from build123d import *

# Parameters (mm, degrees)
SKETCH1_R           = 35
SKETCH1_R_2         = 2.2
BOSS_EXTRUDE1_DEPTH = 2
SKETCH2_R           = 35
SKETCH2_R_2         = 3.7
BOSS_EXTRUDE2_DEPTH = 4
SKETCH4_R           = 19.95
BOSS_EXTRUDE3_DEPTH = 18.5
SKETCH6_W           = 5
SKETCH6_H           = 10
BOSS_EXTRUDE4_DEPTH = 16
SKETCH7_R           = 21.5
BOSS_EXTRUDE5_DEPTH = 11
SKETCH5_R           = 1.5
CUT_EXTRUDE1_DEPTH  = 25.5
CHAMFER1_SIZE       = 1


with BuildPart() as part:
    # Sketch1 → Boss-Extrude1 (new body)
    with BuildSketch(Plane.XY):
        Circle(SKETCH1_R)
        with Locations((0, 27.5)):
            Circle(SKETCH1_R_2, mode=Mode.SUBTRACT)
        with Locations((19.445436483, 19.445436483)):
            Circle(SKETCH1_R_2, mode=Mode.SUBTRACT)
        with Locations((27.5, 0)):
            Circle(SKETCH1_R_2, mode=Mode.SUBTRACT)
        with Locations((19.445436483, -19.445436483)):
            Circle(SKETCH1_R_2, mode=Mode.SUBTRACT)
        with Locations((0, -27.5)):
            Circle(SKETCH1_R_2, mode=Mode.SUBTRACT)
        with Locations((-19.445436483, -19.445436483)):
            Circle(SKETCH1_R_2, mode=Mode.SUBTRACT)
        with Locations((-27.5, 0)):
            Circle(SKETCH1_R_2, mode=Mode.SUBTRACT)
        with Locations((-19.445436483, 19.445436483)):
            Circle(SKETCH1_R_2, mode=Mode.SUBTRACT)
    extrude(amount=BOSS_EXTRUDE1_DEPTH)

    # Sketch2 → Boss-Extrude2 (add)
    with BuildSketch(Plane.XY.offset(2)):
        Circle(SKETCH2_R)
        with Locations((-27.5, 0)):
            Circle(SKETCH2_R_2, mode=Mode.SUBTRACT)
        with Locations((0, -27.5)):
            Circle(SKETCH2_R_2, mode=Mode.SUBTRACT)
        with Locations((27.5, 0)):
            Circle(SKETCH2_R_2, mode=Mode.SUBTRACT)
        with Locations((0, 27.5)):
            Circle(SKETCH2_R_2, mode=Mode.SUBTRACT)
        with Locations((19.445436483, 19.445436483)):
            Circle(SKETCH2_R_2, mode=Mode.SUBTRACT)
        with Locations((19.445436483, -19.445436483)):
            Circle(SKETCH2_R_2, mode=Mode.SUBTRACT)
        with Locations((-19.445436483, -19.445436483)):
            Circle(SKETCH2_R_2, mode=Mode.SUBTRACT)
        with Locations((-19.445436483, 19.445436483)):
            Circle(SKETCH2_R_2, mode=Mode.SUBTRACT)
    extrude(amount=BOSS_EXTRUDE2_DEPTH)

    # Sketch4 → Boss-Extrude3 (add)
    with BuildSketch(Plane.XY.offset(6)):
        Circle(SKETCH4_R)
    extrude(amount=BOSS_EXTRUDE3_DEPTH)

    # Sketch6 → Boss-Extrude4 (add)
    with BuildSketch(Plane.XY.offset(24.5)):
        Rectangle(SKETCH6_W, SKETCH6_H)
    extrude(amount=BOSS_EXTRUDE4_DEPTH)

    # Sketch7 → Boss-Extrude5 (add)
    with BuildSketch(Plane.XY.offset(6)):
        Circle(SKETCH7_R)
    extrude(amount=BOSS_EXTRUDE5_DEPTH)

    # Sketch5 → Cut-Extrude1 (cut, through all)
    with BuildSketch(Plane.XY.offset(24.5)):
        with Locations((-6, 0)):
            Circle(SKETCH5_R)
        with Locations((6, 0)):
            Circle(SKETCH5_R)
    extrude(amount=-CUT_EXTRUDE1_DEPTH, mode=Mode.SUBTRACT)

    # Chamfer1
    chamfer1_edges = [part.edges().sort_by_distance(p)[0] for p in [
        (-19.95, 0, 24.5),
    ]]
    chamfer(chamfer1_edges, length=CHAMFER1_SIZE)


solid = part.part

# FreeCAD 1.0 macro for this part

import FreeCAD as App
import Part
import Sketcher

V = App.Vector


def edges_at(feature, points):
    """Names of the edges that pass closest to the given points."""
    edges = feature.Shape.Edges
    near = lambda p: min(range(len(edges)), key=lambda i: edges[i].distToShape(Part.Vertex(*p))[0])
    return sorted({f"Edge{near(p) + 1}" for p in points})


def add_polygon(sketch, points):
    """Adds a closed chain of lines whose ends are joined by coincident constraints."""
    first, n = sketch.GeometryCount, len(points)
    for a, b in zip(points, points[1:] + points[:1]):
        sketch.addGeometry(Part.LineSegment(App.Vector(*a, 0), App.Vector(*b, 0)), False)
    for i in range(n):
        sketch.addConstraint(Sketcher.Constraint("Coincident", first + i, 2, first + (i + 1) % n, 1))

doc = App.newDocument("Part")
params = doc.addObject("Spreadsheet::Sheet", "Params")
for row, (alias, value) in enumerate([
    ("sketch1_diameter", "70 mm"),
    ("sketch1_diameter2", "4.4 mm"),
    ("pad1_length", "2 mm"),
    ("sketch2_diameter", "70 mm"),
    ("sketch2_diameter2", "7.4 mm"),
    ("pad2_length", "4 mm"),
    ("sketch3_diameter", "39.9 mm"),
    ("pad3_length", "18.5 mm"),
    ("sketch4_width", "5 mm"),
    ("sketch4_height", "10 mm"),
    ("pad4_length", "16 mm"),
    ("sketch5_diameter", "43 mm"),
    ("pad5_length", "11 mm"),
    ("sketch6_diameter", "3 mm"),
    ("chamfer_size", "1 mm"),
], start=1):
    params.set(f"A{row}", alias)
    params.set(f"B{row}", "=" + value)
    params.setAlias(f"B{row}", alias)

body = doc.addObject("PartDesign::Body", "Body")

# Sketch on XY plane
sketch1 = doc.addObject("Sketcher::SketchObject", "Sketch")
body.addObject(sketch1)
sketch1.AttachmentSupport = (doc.XY_Plane, [""])
sketch1.MapMode = "FlatFace"
sketch1.addGeometry(Part.Circle(V(0, 0, 0), V(0, 0, 1), 35), False)
sketch1.addGeometry(Part.Circle(V(-19.4, -19.4, 0), V(0, 0, 1), 2.2), False)
sketch1.addGeometry(Part.Circle(V(0, -27.5, 0), V(0, 0, 1), 2.2), False)
sketch1.addGeometry(Part.Circle(V(19.4, -19.4, 0), V(0, 0, 1), 2.2), False)
sketch1.addGeometry(Part.Circle(V(-27.5, 0, 0), V(0, 0, 1), 2.2), False)
sketch1.addGeometry(Part.Circle(V(-19.4, 19.4, 0), V(0, 0, 1), 2.2), False)
sketch1.addGeometry(Part.Circle(V(27.5, 0, 0), V(0, 0, 1), 2.2), False)
sketch1.addGeometry(Part.Circle(V(0, 27.5, 0), V(0, 0, 1), 2.2), False)
sketch1.addGeometry(Part.Circle(V(19.4, 19.4, 0), V(0, 0, 1), 2.2), False)
sketch1.addConstraint(Sketcher.Constraint("Coincident", 0, 3, -1, 1))
sketch1.addConstraint(Sketcher.Constraint("Equal", 1, 2))
sketch1.addConstraint(Sketcher.Constraint("Equal", 2, 3))
sketch1.addConstraint(Sketcher.Constraint("Equal", 3, 4))
sketch1.addConstraint(Sketcher.Constraint("Equal", 4, 5))
sketch1.addConstraint(Sketcher.Constraint("Equal", 5, 6))
sketch1.addConstraint(Sketcher.Constraint("Equal", 6, 7))
sketch1.addConstraint(Sketcher.Constraint("Equal", 7, 8))
sketch1.addConstraint(Sketcher.Constraint("Symmetric", 3, 3, 5, 3, -1, 1))
sketch1.addConstraint(Sketcher.Constraint("Symmetric", 4, 3, 6, 3, -1, 1))
sketch1.addConstraint(Sketcher.Constraint("Symmetric", 2, 3, 7, 3, -1, 1))
sketch1.addConstraint(Sketcher.Constraint("Symmetric", 1, 3, 8, 3, -1, 1))
sketch1.addConstraint(Sketcher.Constraint("Symmetric", 1, 3, 3, 3, -2))
sketch1.addConstraint(Sketcher.Constraint("PointOnObject", 2, 3, -2))
sketch1.addConstraint(Sketcher.Constraint("PointOnObject", 4, 3, -1))
sketch1.addConstraint(Sketcher.Constraint("Diameter", 0, 70.0))
sketch1.addConstraint(Sketcher.Constraint("Diameter", 1, 4.4))
sketch1.addConstraint(Sketcher.Constraint("DistanceY", 2, 3, -1, 1, 27.5))
sketch1.addConstraint(Sketcher.Constraint("DistanceX", 4, 3, -1, 1, 27.5))
sketch1.addConstraint(Sketcher.Constraint("DistanceX", 1, 3, -1, 1, 19.445436))
sketch1.addConstraint(Sketcher.Constraint("DistanceY", 1, 3, -1, 1, 19.445436))
sketch1.setExpression("Constraints[15]", "Params.sketch1_diameter")
sketch1.setExpression("Constraints[16]", "Params.sketch1_diameter2")
pad1 = doc.addObject("PartDesign::Pad", "Pad")
body.addObject(pad1)
pad1.Profile = sketch1
pad1.setExpression("Length", "Params.pad1_length")

# Sketch on XY plane
sketch2 = doc.addObject("Sketcher::SketchObject", "Sketch001")
body.addObject(sketch2)
sketch2.AttachmentSupport = (doc.XY_Plane, [""])
sketch2.MapMode = "FlatFace"
sketch2.AttachmentOffset = App.Placement(V(0, 0, 2), App.Rotation())
sketch2.addGeometry(Part.Circle(V(0, 0, 0), V(0, 0, 1), 35), False)
sketch2.addGeometry(Part.Circle(V(-19.4, -19.4, 0), V(0, 0, 1), 3.7), False)
sketch2.addGeometry(Part.Circle(V(0, -27.5, 0), V(0, 0, 1), 3.7), False)
sketch2.addGeometry(Part.Circle(V(19.4, -19.4, 0), V(0, 0, 1), 3.7), False)
sketch2.addGeometry(Part.Circle(V(-27.5, 0, 0), V(0, 0, 1), 3.7), False)
sketch2.addGeometry(Part.Circle(V(-19.4, 19.4, 0), V(0, 0, 1), 3.7), False)
sketch2.addGeometry(Part.Circle(V(27.5, 0, 0), V(0, 0, 1), 3.7), False)
sketch2.addGeometry(Part.Circle(V(0, 27.5, 0), V(0, 0, 1), 3.7), False)
sketch2.addGeometry(Part.Circle(V(19.4, 19.4, 0), V(0, 0, 1), 3.7), False)
sketch2.addConstraint(Sketcher.Constraint("Coincident", 0, 3, -1, 1))
sketch2.addConstraint(Sketcher.Constraint("Equal", 1, 2))
sketch2.addConstraint(Sketcher.Constraint("Equal", 2, 3))
sketch2.addConstraint(Sketcher.Constraint("Equal", 3, 4))
sketch2.addConstraint(Sketcher.Constraint("Equal", 4, 5))
sketch2.addConstraint(Sketcher.Constraint("Equal", 5, 6))
sketch2.addConstraint(Sketcher.Constraint("Equal", 6, 7))
sketch2.addConstraint(Sketcher.Constraint("Equal", 7, 8))
sketch2.addConstraint(Sketcher.Constraint("Symmetric", 3, 3, 5, 3, -1, 1))
sketch2.addConstraint(Sketcher.Constraint("Symmetric", 4, 3, 6, 3, -1, 1))
sketch2.addConstraint(Sketcher.Constraint("Symmetric", 2, 3, 7, 3, -1, 1))
sketch2.addConstraint(Sketcher.Constraint("Symmetric", 1, 3, 8, 3, -1, 1))
sketch2.addConstraint(Sketcher.Constraint("Symmetric", 1, 3, 3, 3, -2))
sketch2.addConstraint(Sketcher.Constraint("PointOnObject", 2, 3, -2))
sketch2.addConstraint(Sketcher.Constraint("PointOnObject", 4, 3, -1))
sketch2.addConstraint(Sketcher.Constraint("Diameter", 0, 70.0))
sketch2.addConstraint(Sketcher.Constraint("Diameter", 1, 7.4))
sketch2.addConstraint(Sketcher.Constraint("DistanceY", 2, 3, -1, 1, 27.5))
sketch2.addConstraint(Sketcher.Constraint("DistanceX", 4, 3, -1, 1, 27.5))
sketch2.addConstraint(Sketcher.Constraint("DistanceX", 1, 3, -1, 1, 19.445436))
sketch2.addConstraint(Sketcher.Constraint("DistanceY", 1, 3, -1, 1, 19.445436))
sketch2.setExpression("Constraints[15]", "Params.sketch2_diameter")
sketch2.setExpression("Constraints[16]", "Params.sketch2_diameter2")
pad2 = doc.addObject("PartDesign::Pad", "Pad001")
body.addObject(pad2)
pad2.Profile = sketch2
pad2.setExpression("Length", "Params.pad2_length")

# Sketch on XY plane
sketch3 = doc.addObject("Sketcher::SketchObject", "Sketch002")
body.addObject(sketch3)
sketch3.AttachmentSupport = (doc.XY_Plane, [""])
sketch3.MapMode = "FlatFace"
sketch3.AttachmentOffset = App.Placement(V(0, 0, 6), App.Rotation())
sketch3.addGeometry(Part.Circle(V(0, 0, 0), V(0, 0, 1), 20), False)
sketch3.addConstraint(Sketcher.Constraint("Coincident", 0, 3, -1, 1))
sketch3.addConstraint(Sketcher.Constraint("Diameter", 0, 39.9))
sketch3.setExpression("Constraints[1]", "Params.sketch3_diameter")
pad3 = doc.addObject("PartDesign::Pad", "Pad002")
body.addObject(pad3)
pad3.Profile = sketch3
pad3.setExpression("Length", "Params.pad3_length")

# Sketch on XY plane
sketch4 = doc.addObject("Sketcher::SketchObject", "Sketch003")
body.addObject(sketch4)
sketch4.AttachmentSupport = (doc.XY_Plane, [""])
sketch4.MapMode = "FlatFace"
sketch4.AttachmentOffset = App.Placement(V(0, 0, 24.5), App.Rotation())
add_polygon(sketch4, [(-2, 5), (-2, -5), (2, -5), (2, 5)])  # lines 0-3
sketch4.addConstraint(Sketcher.Constraint("Vertical", 0))
sketch4.addConstraint(Sketcher.Constraint("Horizontal", 1))
sketch4.addConstraint(Sketcher.Constraint("Vertical", 2))
sketch4.addConstraint(Sketcher.Constraint("Horizontal", 3))
sketch4.addConstraint(Sketcher.Constraint("Symmetric", 0, 2, 2, 2, -1, 1))
sketch4.addConstraint(Sketcher.Constraint("DistanceX", 1, 1, 1, 2, 5.0))
sketch4.addConstraint(Sketcher.Constraint("DistanceY", 0, 2, 0, 1, 10.0))
sketch4.setExpression("Constraints[9]", "Params.sketch4_width")
sketch4.setExpression("Constraints[10]", "Params.sketch4_height")
pad4 = doc.addObject("PartDesign::Pad", "Pad003")
body.addObject(pad4)
pad4.Profile = sketch4
pad4.setExpression("Length", "Params.pad4_length")

# Sketch on XY plane
sketch5 = doc.addObject("Sketcher::SketchObject", "Sketch004")
body.addObject(sketch5)
sketch5.AttachmentSupport = (doc.XY_Plane, [""])
sketch5.MapMode = "FlatFace"
sketch5.AttachmentOffset = App.Placement(V(0, 0, 6), App.Rotation())
sketch5.addGeometry(Part.Circle(V(0, 0, 0), V(0, 0, 1), 22), False)
sketch5.addConstraint(Sketcher.Constraint("Coincident", 0, 3, -1, 1))
sketch5.addConstraint(Sketcher.Constraint("Diameter", 0, 43.0))
sketch5.setExpression("Constraints[1]", "Params.sketch5_diameter")
pad5 = doc.addObject("PartDesign::Pad", "Pad004")
body.addObject(pad5)
pad5.Profile = sketch5
pad5.setExpression("Length", "Params.pad5_length")

# Sketch on XY plane
sketch6 = doc.addObject("Sketcher::SketchObject", "Sketch005")
body.addObject(sketch6)
sketch6.AttachmentSupport = (doc.XY_Plane, [""])
sketch6.MapMode = "FlatFace"
sketch6.AttachmentOffset = App.Placement(V(0, 0, 24.5), App.Rotation())
sketch6.addGeometry(Part.Circle(V(-6, 0, 0), V(0, 0, 1), 1.5), False)
sketch6.addGeometry(Part.Circle(V(6, 0, 0), V(0, 0, 1), 1.5), False)
sketch6.addConstraint(Sketcher.Constraint("Equal", 0, 1))
sketch6.addConstraint(Sketcher.Constraint("Symmetric", 0, 3, 1, 3, -1, 1))
sketch6.addConstraint(Sketcher.Constraint("PointOnObject", 0, 3, -1))
sketch6.addConstraint(Sketcher.Constraint("Diameter", 0, 3.0))
sketch6.addConstraint(Sketcher.Constraint("DistanceX", 0, 3, -1, 1, 6.0))
sketch6.setExpression("Constraints[3]", "Params.sketch6_diameter")
pocket1 = doc.addObject("PartDesign::Pocket", "Pocket")
body.addObject(pocket1)
pocket1.Profile = sketch6
pocket1.Type = "ThroughAll"
doc.recompute()

chamfer = doc.addObject("PartDesign::Chamfer", "Chamfer")
body.addObject(chamfer)
chamfer.Base = (pocket1, edges_at(pocket1, [(-19.95, 0, 24.5)]))
chamfer.setExpression("Size", "Params.chamfer_size")

doc.recompute()
